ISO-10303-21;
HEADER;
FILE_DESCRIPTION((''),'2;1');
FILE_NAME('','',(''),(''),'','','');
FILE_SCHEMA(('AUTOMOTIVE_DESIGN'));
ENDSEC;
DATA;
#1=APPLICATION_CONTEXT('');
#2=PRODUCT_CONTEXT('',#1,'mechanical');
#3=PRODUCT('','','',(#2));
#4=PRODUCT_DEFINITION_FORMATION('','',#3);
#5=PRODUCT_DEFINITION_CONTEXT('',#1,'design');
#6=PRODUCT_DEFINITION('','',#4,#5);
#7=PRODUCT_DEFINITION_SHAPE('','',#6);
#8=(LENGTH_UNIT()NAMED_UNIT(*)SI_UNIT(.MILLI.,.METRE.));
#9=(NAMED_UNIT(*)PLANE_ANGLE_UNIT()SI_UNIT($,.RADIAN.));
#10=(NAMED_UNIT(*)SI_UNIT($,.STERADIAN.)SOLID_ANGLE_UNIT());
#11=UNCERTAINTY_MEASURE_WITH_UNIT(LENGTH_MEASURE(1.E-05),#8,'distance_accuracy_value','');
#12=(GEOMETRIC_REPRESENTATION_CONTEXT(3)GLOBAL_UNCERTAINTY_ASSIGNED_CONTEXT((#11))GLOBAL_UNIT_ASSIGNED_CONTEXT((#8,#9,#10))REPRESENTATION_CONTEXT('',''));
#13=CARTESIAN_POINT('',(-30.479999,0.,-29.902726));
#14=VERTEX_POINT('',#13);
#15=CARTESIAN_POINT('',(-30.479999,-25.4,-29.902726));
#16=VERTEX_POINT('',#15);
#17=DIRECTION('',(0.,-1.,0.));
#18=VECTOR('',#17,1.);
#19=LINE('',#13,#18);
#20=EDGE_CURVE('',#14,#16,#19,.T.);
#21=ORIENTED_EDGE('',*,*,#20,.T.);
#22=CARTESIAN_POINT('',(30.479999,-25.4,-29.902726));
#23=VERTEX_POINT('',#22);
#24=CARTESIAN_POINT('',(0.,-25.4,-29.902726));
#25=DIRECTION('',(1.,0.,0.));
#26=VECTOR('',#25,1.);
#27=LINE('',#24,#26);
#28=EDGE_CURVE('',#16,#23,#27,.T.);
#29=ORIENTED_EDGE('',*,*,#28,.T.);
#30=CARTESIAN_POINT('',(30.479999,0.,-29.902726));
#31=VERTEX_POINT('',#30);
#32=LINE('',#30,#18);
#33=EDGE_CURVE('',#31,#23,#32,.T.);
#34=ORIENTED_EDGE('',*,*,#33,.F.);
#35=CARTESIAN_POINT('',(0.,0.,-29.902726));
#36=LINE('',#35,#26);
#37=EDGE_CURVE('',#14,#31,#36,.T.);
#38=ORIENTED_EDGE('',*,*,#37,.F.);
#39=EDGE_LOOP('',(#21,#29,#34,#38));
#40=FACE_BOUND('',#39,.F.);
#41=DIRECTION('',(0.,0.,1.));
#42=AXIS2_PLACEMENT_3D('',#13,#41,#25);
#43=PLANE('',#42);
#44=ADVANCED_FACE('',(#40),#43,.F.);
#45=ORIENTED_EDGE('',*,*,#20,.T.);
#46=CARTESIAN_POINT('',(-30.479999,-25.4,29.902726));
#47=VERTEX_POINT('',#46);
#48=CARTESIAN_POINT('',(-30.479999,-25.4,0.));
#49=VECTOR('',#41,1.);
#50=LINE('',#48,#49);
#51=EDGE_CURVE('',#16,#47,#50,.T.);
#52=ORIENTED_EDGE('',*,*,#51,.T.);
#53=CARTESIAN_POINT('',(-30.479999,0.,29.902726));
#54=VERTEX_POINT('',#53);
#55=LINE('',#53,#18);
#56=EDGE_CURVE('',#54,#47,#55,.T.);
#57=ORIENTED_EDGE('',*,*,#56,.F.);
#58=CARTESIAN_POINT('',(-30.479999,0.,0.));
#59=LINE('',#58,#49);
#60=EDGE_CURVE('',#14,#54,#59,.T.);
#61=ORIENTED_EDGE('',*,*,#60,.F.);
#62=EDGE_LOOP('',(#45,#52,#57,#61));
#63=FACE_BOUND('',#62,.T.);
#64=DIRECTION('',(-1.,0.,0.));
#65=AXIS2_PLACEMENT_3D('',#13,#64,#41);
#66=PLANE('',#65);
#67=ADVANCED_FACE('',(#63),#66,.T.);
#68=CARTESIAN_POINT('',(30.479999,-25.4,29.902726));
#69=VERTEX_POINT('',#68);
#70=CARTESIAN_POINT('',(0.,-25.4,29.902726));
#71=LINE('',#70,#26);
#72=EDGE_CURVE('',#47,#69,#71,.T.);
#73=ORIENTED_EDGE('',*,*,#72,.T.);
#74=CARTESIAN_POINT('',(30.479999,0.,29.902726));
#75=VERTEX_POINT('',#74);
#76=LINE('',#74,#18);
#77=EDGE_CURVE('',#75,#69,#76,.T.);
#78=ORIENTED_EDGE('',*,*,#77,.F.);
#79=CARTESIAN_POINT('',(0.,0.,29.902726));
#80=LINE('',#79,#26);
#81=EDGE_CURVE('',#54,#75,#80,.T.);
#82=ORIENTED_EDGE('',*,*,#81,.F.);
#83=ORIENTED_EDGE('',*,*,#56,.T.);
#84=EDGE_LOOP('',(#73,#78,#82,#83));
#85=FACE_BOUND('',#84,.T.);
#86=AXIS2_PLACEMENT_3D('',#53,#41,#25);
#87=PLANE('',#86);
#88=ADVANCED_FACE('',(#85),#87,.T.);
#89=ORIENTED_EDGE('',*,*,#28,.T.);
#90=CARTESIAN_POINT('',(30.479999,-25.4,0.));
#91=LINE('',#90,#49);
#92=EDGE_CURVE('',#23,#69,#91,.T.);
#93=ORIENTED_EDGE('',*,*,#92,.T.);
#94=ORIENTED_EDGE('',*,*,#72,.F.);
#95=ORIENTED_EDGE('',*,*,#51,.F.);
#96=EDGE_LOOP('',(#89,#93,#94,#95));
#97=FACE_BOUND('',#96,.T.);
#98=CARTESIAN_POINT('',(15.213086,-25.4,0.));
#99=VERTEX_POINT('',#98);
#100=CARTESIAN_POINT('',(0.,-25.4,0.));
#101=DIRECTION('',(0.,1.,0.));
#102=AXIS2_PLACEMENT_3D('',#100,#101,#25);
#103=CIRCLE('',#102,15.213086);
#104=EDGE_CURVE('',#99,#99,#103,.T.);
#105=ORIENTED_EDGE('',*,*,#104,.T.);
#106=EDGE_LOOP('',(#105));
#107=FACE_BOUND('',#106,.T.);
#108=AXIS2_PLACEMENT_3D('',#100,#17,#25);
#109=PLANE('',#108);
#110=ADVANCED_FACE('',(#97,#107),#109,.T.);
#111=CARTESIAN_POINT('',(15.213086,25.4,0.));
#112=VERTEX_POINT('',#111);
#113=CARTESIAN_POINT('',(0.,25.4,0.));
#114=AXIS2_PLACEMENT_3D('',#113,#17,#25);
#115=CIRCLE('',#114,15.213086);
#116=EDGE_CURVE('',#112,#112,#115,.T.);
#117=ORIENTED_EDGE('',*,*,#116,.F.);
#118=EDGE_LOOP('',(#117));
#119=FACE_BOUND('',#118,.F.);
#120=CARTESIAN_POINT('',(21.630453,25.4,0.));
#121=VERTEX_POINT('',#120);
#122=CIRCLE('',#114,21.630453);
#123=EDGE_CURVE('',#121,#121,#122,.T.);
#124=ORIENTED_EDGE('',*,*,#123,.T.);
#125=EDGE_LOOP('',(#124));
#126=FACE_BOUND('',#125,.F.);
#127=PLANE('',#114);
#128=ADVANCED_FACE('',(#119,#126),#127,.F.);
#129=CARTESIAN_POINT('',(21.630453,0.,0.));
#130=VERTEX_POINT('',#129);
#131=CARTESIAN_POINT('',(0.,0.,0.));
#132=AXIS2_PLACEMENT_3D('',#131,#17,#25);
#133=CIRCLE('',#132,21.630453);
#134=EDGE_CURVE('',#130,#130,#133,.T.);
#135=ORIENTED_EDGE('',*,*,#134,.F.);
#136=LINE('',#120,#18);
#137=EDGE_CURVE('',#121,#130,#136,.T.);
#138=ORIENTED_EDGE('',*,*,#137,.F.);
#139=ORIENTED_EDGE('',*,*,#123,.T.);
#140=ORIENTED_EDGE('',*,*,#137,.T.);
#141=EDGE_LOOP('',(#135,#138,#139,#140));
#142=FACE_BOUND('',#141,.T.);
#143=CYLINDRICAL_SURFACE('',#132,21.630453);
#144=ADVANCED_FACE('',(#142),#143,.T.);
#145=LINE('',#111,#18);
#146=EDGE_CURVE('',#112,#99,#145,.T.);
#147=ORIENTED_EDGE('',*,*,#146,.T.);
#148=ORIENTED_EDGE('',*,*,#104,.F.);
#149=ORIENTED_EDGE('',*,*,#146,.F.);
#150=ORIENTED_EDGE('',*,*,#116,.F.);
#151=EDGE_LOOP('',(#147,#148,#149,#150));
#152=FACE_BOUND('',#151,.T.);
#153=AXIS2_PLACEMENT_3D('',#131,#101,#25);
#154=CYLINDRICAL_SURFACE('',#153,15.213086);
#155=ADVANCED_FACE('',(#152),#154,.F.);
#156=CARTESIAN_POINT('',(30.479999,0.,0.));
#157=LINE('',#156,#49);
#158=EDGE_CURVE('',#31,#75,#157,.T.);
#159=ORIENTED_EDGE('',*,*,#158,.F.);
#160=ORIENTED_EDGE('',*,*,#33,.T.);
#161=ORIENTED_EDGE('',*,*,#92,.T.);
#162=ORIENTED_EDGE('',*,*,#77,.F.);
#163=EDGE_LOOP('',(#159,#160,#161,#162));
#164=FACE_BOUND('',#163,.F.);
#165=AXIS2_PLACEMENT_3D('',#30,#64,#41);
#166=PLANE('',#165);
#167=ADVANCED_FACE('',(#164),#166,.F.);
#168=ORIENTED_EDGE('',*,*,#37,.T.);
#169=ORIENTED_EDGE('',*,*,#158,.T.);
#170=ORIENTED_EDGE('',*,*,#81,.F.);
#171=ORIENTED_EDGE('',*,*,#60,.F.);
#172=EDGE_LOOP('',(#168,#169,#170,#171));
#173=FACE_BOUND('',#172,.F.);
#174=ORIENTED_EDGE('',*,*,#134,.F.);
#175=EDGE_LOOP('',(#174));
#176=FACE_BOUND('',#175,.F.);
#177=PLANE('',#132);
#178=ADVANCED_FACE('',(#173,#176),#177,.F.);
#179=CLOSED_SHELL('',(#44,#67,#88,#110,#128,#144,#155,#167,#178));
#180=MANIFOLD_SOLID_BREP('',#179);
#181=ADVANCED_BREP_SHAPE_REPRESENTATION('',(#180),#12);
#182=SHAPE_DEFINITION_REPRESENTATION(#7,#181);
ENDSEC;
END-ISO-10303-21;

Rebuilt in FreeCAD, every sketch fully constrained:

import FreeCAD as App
import Part
import Sketcher
from FreeCAD import Vector
Q = App.Units.Quantity


def add_polygon(sketch, points):
    """Adds a closed chain of lines whose ends are joined by coincident constraints."""
    first, n = sketch.GeometryCount, len(points)
    for a, b in zip(points, points[1:] + points[:1]):
        sketch.addGeometry(Part.LineSegment(App.Vector(*a, 0), App.Vector(*b, 0)), False)
    for i in range(n):
        sketch.addConstraint(Sketcher.Constraint("Coincident", first + i, 2, first + (i + 1) % n, 1))

doc = App.newDocument("Part")
body = doc.addObject("PartDesign::Body", "Body")

# Sketch on XZ plane
sketch1 = doc.addObject("Sketcher::SketchObject", "Sketch")
body.addObject(sketch1)
sketch1.AttachmentSupport = (doc.XZ_Plane, [""])
sketch1.MapMode = "FlatFace"
add_polygon(sketch1, [(-30, 30), (-30, -30), (30, -30), (30, 30)])  # lines 0-3
sketch1.addConstraint([
    Sketcher.Constraint("Vertical", 0),
    Sketcher.Constraint("Horizontal", 1),
    Sketcher.Constraint("Vertical", 2),
    Sketcher.Constraint("Horizontal", 3),
    Sketcher.Constraint("Symmetric", 0, 2, 2, 2, -1, 1),
    Sketcher.Constraint("DistanceX", 1, 1, 1, 2, Q("2.3999999 in")),
    Sketcher.Constraint("DistanceY", 0, 2, 0, 1, 59.805452),
])
pad1 = doc.addObject("PartDesign::Pad", "Pad")
body.addObject(pad1)
pad1.Profile = sketch1
pad1.Length = Q("1 in")

# Sketch on XZ plane
sketch2 = doc.addObject("Sketcher::SketchObject", "Sketch001")
body.addObject(sketch2)
sketch2.AttachmentSupport = (doc.XZ_Plane, [""])
sketch2.MapMode = "FlatFace"
sketch2.addGeometry([
    Part.Circle(Vector(0, 0, 0), Vector(0, 0, 1), 22),
    Part.Circle(Vector(0, 0, 0), Vector(0, 0, 1), 15),
], False)
sketch2.addConstraint([
    Sketcher.Constraint("Coincident", 0, 3, -1, 1),
    Sketcher.Constraint("Coincident", 1, 3, -1, 1),
    Sketcher.Constraint("Diameter", 0, 43.260906),
    Sketcher.Constraint("Diameter", 1, 30.426172),
])
pad2 = doc.addObject("PartDesign::Pad", "Pad001")
body.addObject(pad2)
pad2.Profile = sketch2
pad2.Length = Q("2 in")
pad2.Midplane = True

# Sketch on XZ plane
sketch3 = doc.addObject("Sketcher::SketchObject", "Sketch002")
body.addObject(sketch3)
sketch3.AttachmentSupport = (doc.XZ_Plane, [""])
sketch3.MapMode = "FlatFace"
sketch3.addGeometry(Part.Circle(Vector(0, 0, 0), Vector(0, 0, 1), 15), False)
sketch3.addConstraint([
    Sketcher.Constraint("Coincident", 0, 3, -1, 1),
    Sketcher.Constraint("Diameter", 0, 30.426172),
])
pocket1 = doc.addObject("PartDesign::Pocket", "Pocket")
body.addObject(pocket1)
pocket1.Profile = sketch3
pocket1.Length = Q("1 in")
pocket1.Reversed = True

doc.recompute()
